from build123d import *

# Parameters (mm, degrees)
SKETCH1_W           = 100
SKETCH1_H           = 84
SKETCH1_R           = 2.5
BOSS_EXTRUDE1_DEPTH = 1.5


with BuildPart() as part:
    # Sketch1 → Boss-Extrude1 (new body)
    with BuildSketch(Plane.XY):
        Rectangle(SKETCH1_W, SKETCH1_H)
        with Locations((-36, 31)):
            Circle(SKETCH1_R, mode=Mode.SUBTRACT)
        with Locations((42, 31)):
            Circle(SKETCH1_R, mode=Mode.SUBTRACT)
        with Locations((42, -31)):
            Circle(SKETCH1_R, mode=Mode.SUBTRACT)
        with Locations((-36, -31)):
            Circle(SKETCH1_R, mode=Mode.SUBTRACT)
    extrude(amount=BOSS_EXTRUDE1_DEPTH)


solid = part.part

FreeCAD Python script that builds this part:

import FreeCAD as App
import Part
import Sketcher

V = App.Vector

doc = App.newDocument("Part")
body = doc.addObject("PartDesign::Body", "Body")

# Sketch on XY plane
sketch1 = body.newObject("Sketcher::SketchObject", "Sketch")
sketch1.AttachmentSupport = (doc.getObject("XY_Plane"), [""])
sketch1.MapMode = "FlatFace"
sketch1.addGeometry([
    Part.LineSegment(V(-50, 42, 0), V(-50, -42, 0)),  # 0
    Part.LineSegment(V(-50, -42, 0), V(50, -42, 0)),  # 1
    Part.LineSegment(V(50, -42, 0), V(50, 42, 0)),  # 2
    Part.LineSegment(V(50, 42, 0), V(-50, 42, 0)),  # 3
    Part.Circle(V(-36, -31, 0), V(0, 0, 1), 2.5),  # 4
    Part.Circle(V(42, -31, 0), V(0, 0, 1), 2.5),  # 5
    Part.Circle(V(-36, 31, 0), V(0, 0, 1), 2.5),  # 6
    Part.Circle(V(42, 31, 0), V(0, 0, 1), 2.5),  # 7
], False)
sketch1.addConstraint([
    Sketcher.Constraint("Coincident", 0, 2, 1, 1),
    Sketcher.Constraint("Coincident", 1, 2, 2, 1),
    Sketcher.Constraint("Coincident", 2, 2, 3, 1),
    Sketcher.Constraint("Coincident", 3, 2, 0, 1),
    Sketcher.Constraint("Vertical", 0),
    Sketcher.Constraint("Horizontal", 1),
    Sketcher.Constraint("Vertical", 2),
    Sketcher.Constraint("Horizontal", 3),
    Sketcher.Constraint("Equal", 4, 5),
    Sketcher.Constraint("Equal", 5, 6),
    Sketcher.Constraint("Equal", 6, 7),
    Sketcher.Constraint("Symmetric", 0, 2, 2, 2, -1, 1),
    Sketcher.Constraint("Symmetric", 4, 3, 6, 3, -1),
    Sketcher.Constraint("Symmetric", 5, 3, 7, 3, -1),
    Sketcher.Constraint("Horizontal", 4, 3, 5, 3),
    Sketcher.Constraint("Diameter", 4, 5.0),
    Sketcher.Constraint("DistanceX", 1, 1, 1, 2, 100.0),
    Sketcher.Constraint("DistanceY", 0, 2, 0, 1, 84.0),
    Sketcher.Constraint("DistanceX", 4, 3, -1, 1, 36.0),
    Sketcher.Constraint("DistanceY", 4, 3, -1, 1, 31.0),
    Sketcher.Constraint("DistanceX", -1, 1, 5, 3, 42.0),
])
pad1 = body.newObject("PartDesign::Pad", "Pad")
pad1.Profile = sketch1
pad1.Length = 1.5

doc.recompute()
